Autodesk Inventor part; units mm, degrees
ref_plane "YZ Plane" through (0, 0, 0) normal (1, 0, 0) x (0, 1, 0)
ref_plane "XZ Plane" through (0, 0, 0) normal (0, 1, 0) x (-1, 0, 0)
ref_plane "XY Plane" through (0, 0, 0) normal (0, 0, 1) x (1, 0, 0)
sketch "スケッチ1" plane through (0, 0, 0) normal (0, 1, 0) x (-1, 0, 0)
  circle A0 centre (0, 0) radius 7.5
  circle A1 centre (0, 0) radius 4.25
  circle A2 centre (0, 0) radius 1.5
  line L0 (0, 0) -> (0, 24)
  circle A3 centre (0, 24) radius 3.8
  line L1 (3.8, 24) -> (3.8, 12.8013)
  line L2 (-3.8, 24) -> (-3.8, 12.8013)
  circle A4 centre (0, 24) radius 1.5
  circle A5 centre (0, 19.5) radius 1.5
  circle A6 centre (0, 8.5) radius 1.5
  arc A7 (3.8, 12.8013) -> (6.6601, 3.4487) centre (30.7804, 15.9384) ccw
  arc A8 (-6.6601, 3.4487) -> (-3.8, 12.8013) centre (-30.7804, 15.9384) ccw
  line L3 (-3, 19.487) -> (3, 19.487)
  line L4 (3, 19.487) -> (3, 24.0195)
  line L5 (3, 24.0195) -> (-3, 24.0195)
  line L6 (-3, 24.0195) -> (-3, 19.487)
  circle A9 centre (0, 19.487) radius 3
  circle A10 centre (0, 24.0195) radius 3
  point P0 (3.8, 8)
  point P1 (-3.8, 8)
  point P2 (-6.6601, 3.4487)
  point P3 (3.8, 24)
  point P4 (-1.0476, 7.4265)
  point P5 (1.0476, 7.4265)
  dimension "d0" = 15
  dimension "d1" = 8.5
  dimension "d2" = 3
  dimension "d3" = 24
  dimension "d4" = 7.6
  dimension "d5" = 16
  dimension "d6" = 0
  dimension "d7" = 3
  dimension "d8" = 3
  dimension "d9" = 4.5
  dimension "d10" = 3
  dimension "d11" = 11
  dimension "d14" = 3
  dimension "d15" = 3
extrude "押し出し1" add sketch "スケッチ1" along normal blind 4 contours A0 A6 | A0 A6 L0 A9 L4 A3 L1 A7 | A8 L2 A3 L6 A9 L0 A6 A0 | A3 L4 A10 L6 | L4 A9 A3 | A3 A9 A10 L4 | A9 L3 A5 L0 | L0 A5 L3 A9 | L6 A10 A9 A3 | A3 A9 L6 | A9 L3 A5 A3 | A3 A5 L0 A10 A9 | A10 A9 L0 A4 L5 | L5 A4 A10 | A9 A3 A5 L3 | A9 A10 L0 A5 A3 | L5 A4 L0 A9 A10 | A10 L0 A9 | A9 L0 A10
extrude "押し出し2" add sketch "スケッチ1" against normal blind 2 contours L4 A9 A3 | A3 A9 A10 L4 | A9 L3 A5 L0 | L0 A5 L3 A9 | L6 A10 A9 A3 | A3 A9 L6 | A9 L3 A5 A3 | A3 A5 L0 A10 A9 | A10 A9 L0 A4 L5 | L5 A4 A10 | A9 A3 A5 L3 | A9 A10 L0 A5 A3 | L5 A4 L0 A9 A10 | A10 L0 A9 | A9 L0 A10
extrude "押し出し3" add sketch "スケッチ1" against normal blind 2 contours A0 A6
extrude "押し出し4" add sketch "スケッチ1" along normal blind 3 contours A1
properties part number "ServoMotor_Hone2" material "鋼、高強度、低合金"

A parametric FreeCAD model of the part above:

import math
import FreeCAD as App
import Part
import Sketcher
from FreeCAD import Vector

doc = App.newDocument("Part")
body = doc.addObject("PartDesign::Body", "Body")

sketch1 = body.newObject("Sketcher::SketchObject", "Sketch")
sketch1.AttachmentSupport = (doc.getObject("XZ_Plane"), [""])
sketch1.MapMode = "FlatFace"
sketch1.addGeometry(Part.ArcOfCircle(Part.Circle(Vector(0, 0, 0), Vector(0, 0, 1), 7.5), math.radians(152.624199), math.radians(387.375801)), False)
sketch1.addGeometry(Part.ArcOfCircle(Part.Circle(Vector(-30.779347, 15.93818, 0), Vector(0, 0, 1), 27.161097), math.radians(-27.376121), math.radians(-6.631983)), False)
sketch1.addGeometry(Part.LineSegment(Vector(-3.8, 12.8013, 0), Vector(-3.8, 24, 0)), False)
sketch1.addGeometry(Part.ArcOfCircle(Part.Circle(Vector(0, 24, 0), Vector(0, 0, 1), 3.8), math.radians(0), math.radians(180)), False)
sketch1.addGeometry(Part.LineSegment(Vector(3.8, 24, 0), Vector(3.8, 12.8013, 0)), False)
sketch1.addGeometry(Part.ArcOfCircle(Part.Circle(Vector(30.781396, 15.938806, 0), Vector(0, 0, 1), 27.163205), math.radians(-173.367203), math.radians(-152.624693)), False)
sketch1.addGeometry(Part.Circle(Vector(0, 8.5, 0), Vector(0, 0, 1), 1.5), False)
sketch1.addGeometry(Part.Circle(Vector(0, 0, 0), Vector(0, 0, 1), 4.25), False)
sketch1.addGeometry(Part.Circle(Vector(0, 19.5, 0), Vector(0, 0, 1), 1.5), False)
sketch1.addGeometry(Part.Circle(Vector(0, 24, 0), Vector(0, 0, 1), 1.5), False)
sketch1.addConstraint(Sketcher.Constraint("Tangent", 0, 1, 1, 1))
sketch1.addConstraint(Sketcher.Constraint("Coincident", 1, 2, 2, 1))
sketch1.addConstraint(Sketcher.Constraint("Tangent", 2, 2, 3, 2))
sketch1.addConstraint(Sketcher.Constraint("Tangent", 3, 1, 4, 1))
sketch1.addConstraint(Sketcher.Constraint("Coincident", 4, 2, 5, 1))
sketch1.addConstraint(Sketcher.Constraint("Tangent", 5, 2, 0, 2))
sketch1.addConstraint(Sketcher.Constraint("Vertical", 2))
sketch1.addConstraint(Sketcher.Constraint("Vertical", 4))
sketch1.addConstraint(Sketcher.Constraint("Coincident", 0, 3, -1, 1))
sketch1.addConstraint(Sketcher.Constraint("Coincident", 7, 3, -1, 1))
sketch1.addConstraint(Sketcher.Constraint("Coincident", 9, 3, 3, 3))
sketch1.addConstraint(Sketcher.Constraint("Equal", 6, 8))
sketch1.addConstraint(Sketcher.Constraint("Equal", 8, 9))
sketch1.addConstraint(Sketcher.Constraint("Symmetric", 1, 2, 4, 2, -2))
sketch1.addConstraint(Sketcher.Constraint("PointOnObject", 6, 3, -2))
sketch1.addConstraint(Sketcher.Constraint("PointOnObject", 8, 3, -2))
sketch1.addConstraint(Sketcher.Constraint("Diameter", 6, 3.0))
sketch1.addConstraint(Sketcher.Constraint("Diameter", 7, 8.5))
sketch1.addConstraint(Sketcher.Constraint("Radius", 0, 7.5))
sketch1.addConstraint(Sketcher.Constraint("Radius", 3, 3.8))
sketch1.addConstraint(Sketcher.Constraint("DistanceY", -1, 1, 3, 3, 24.0))
sketch1.addConstraint(Sketcher.Constraint("DistanceY", 6, 3, 8, 3, 11.0))
sketch1.addConstraint(Sketcher.Constraint("DistanceY", -1, 1, 6, 3, 8.5))
sketch1.addConstraint(Sketcher.Constraint("Radius", 1, 27.161))
sketch1.addConstraint(Sketcher.Constraint("Radius", 5, 27.1632))
sketch1.addConstraint(Sketcher.Constraint("DistanceX", 0, 1, -1, 1, 6.66))
pad1 = body.newObject("PartDesign::Pad", "Pad")
pad1.Profile = sketch1
pad1.Length = 4
pad1.Reversed = True

sketch2 = body.newObject("Sketcher::SketchObject", "Sketch001")
sketch2.AttachmentSupport = (doc.getObject("XZ_Plane"), [""])
sketch2.MapMode = "FlatFace"
sketch2.addGeometry(Part.LineSegment(Vector(-3, 19.487, 0), Vector(-3, 24.0195, 0)), False)
sketch2.addGeometry(Part.ArcOfCircle(Part.Circle(Vector(0, 24.0195, 0), Vector(0, 0, 1), 3), math.radians(0), math.radians(180)), False)
sketch2.addGeometry(Part.LineSegment(Vector(3, 24.0195, 0), Vector(3, 19.487, 0)), False)
sketch2.addGeometry(Part.ArcOfCircle(Part.Circle(Vector(0, 19.487, 0), Vector(0, 0, 1), 3), math.radians(180), math.radians(360)), False)
sketch2.addGeometry(Part.Circle(Vector(0, 19.5, 0), Vector(0, 0, 1), 1.5), False)
sketch2.addGeometry(Part.Circle(Vector(0, 24, 0), Vector(0, 0, 1), 1.5), False)
sketch2.addConstraint(Sketcher.Constraint("Tangent", 0, 2, 1, 2))
sketch2.addConstraint(Sketcher.Constraint("Tangent", 1, 1, 2, 1))
sketch2.addConstraint(Sketcher.Constraint("Tangent", 2, 2, 3, 2))
sketch2.addConstraint(Sketcher.Constraint("Tangent", 3, 1, 0, 1))
sketch2.addConstraint(Sketcher.Constraint("Vertical", 0))
sketch2.addConstraint(Sketcher.Constraint("Vertical", 2))
sketch2.addConstraint(Sketcher.Constraint("Equal", 4, 5))
sketch2.addConstraint(Sketcher.Constraint("PointOnObject", 1, 3, -2))
sketch2.addConstraint(Sketcher.Constraint("PointOnObject", 4, 3, -2))
sketch2.addConstraint(Sketcher.Constraint("PointOnObject", 5, 3, -2))
sketch2.addConstraint(Sketcher.Constraint("Diameter", 4, 3.0))
sketch2.addConstraint(Sketcher.Constraint("Radius", 1, 3.0))
sketch2.addConstraint(Sketcher.Constraint("DistanceY", -1, 1, 5, 3, 24.0))
sketch2.addConstraint(Sketcher.Constraint("DistanceY", 4, 3, 5, 3, 4.5))
sketch2.addConstraint(Sketcher.Constraint("DistanceY", 0, 1, 0, 2, 4.5325))
sketch2.addConstraint(Sketcher.Constraint("DistanceY", -1, 1, 3, 3, 19.487))
pad2 = body.newObject("PartDesign::Pad", "Pad001")
pad2.Profile = sketch2
pad2.Length = 2

sketch3 = body.newObject("Sketcher::SketchObject", "Sketch002")
sketch3.AttachmentSupport = (doc.getObject("XZ_Plane"), [""])
sketch3.MapMode = "FlatFace"
sketch3.addGeometry(Part.ArcOfCircle(Part.Circle(Vector(0, 0, 0), Vector(0, 0, 1), 7.5), math.radians(98.029583), math.radians(441.970417)), False)
sketch3.addGeometry(Part.ArcOfCircle(Part.Circle(Vector(0, 8.5, 0), Vector(0, 0, 1), 1.5), math.radians(-134.30053), math.radians(-90)), False)
sketch3.addGeometry(Part.ArcOfCircle(Part.Circle(Vector(0, 8.5, 0), Vector(0, 0, 1), 1.5), math.radians(-90), math.radians(-45.69947)), False)
sketch3.addGeometry(Part.Circle(Vector(0, 0, 0), Vector(0, 0, 1), 4.25), False)
sketch3.addConstraint(Sketcher.Constraint("Coincident", 0, 1, 1, 1))
sketch3.addConstraint(Sketcher.Constraint("Tangent", 1, 2, 2, 1))
sketch3.addConstraint(Sketcher.Constraint("Coincident", 2, 2, 0, 2))
sketch3.addConstraint(Sketcher.Constraint("Coincident", 0, 3, -1, 1))
sketch3.addConstraint(Sketcher.Constraint("Coincident", 3, 3, -1, 1))
sketch3.addConstraint(Sketcher.Constraint("Equal", 1, 2))
sketch3.addConstraint(Sketcher.Constraint("PointOnObject", 1, 3, -2))
sketch3.addConstraint(Sketcher.Constraint("PointOnObject", 1, 2, -2))
sketch3.addConstraint(Sketcher.Constraint("Diameter", 3, 8.5))
sketch3.addConstraint(Sketcher.Constraint("Radius", 0, 7.5))
sketch3.addConstraint(Sketcher.Constraint("Radius", 1, 1.5))
sketch3.addConstraint(Sketcher.Constraint("DistanceY", -1, 1, 1, 3, 8.5))
pad3 = body.newObject("PartDesign::Pad", "Pad002")
pad3.Profile = sketch3
pad3.Length = 2

sketch4 = body.newObject("Sketcher::SketchObject", "Sketch003")
sketch4.AttachmentSupport = (doc.getObject("XZ_Plane"), [""])
sketch4.MapMode = "FlatFace"
sketch4.addGeometry(Part.Circle(Vector(0, 0, 0), Vector(0, 0, 1), 4.25), False)
sketch4.addGeometry(Part.Circle(Vector(0, 0, 0), Vector(0, 0, 1), 1.5), False)
sketch4.addConstraint(Sketcher.Constraint("Coincident", 0, 3, -1, 1))
sketch4.addConstraint(Sketcher.Constraint("Coincident", 1, 3, -1, 1))
sketch4.addConstraint(Sketcher.Constraint("Diameter", 1, 3.0))
sketch4.addConstraint(Sketcher.Constraint("Diameter", 0, 8.5))
pad4 = body.newObject("PartDesign::Pad", "Pad003")
pad4.Profile = sketch4
pad4.Length = 3
pad4.Reversed = True

doc.recompute()
